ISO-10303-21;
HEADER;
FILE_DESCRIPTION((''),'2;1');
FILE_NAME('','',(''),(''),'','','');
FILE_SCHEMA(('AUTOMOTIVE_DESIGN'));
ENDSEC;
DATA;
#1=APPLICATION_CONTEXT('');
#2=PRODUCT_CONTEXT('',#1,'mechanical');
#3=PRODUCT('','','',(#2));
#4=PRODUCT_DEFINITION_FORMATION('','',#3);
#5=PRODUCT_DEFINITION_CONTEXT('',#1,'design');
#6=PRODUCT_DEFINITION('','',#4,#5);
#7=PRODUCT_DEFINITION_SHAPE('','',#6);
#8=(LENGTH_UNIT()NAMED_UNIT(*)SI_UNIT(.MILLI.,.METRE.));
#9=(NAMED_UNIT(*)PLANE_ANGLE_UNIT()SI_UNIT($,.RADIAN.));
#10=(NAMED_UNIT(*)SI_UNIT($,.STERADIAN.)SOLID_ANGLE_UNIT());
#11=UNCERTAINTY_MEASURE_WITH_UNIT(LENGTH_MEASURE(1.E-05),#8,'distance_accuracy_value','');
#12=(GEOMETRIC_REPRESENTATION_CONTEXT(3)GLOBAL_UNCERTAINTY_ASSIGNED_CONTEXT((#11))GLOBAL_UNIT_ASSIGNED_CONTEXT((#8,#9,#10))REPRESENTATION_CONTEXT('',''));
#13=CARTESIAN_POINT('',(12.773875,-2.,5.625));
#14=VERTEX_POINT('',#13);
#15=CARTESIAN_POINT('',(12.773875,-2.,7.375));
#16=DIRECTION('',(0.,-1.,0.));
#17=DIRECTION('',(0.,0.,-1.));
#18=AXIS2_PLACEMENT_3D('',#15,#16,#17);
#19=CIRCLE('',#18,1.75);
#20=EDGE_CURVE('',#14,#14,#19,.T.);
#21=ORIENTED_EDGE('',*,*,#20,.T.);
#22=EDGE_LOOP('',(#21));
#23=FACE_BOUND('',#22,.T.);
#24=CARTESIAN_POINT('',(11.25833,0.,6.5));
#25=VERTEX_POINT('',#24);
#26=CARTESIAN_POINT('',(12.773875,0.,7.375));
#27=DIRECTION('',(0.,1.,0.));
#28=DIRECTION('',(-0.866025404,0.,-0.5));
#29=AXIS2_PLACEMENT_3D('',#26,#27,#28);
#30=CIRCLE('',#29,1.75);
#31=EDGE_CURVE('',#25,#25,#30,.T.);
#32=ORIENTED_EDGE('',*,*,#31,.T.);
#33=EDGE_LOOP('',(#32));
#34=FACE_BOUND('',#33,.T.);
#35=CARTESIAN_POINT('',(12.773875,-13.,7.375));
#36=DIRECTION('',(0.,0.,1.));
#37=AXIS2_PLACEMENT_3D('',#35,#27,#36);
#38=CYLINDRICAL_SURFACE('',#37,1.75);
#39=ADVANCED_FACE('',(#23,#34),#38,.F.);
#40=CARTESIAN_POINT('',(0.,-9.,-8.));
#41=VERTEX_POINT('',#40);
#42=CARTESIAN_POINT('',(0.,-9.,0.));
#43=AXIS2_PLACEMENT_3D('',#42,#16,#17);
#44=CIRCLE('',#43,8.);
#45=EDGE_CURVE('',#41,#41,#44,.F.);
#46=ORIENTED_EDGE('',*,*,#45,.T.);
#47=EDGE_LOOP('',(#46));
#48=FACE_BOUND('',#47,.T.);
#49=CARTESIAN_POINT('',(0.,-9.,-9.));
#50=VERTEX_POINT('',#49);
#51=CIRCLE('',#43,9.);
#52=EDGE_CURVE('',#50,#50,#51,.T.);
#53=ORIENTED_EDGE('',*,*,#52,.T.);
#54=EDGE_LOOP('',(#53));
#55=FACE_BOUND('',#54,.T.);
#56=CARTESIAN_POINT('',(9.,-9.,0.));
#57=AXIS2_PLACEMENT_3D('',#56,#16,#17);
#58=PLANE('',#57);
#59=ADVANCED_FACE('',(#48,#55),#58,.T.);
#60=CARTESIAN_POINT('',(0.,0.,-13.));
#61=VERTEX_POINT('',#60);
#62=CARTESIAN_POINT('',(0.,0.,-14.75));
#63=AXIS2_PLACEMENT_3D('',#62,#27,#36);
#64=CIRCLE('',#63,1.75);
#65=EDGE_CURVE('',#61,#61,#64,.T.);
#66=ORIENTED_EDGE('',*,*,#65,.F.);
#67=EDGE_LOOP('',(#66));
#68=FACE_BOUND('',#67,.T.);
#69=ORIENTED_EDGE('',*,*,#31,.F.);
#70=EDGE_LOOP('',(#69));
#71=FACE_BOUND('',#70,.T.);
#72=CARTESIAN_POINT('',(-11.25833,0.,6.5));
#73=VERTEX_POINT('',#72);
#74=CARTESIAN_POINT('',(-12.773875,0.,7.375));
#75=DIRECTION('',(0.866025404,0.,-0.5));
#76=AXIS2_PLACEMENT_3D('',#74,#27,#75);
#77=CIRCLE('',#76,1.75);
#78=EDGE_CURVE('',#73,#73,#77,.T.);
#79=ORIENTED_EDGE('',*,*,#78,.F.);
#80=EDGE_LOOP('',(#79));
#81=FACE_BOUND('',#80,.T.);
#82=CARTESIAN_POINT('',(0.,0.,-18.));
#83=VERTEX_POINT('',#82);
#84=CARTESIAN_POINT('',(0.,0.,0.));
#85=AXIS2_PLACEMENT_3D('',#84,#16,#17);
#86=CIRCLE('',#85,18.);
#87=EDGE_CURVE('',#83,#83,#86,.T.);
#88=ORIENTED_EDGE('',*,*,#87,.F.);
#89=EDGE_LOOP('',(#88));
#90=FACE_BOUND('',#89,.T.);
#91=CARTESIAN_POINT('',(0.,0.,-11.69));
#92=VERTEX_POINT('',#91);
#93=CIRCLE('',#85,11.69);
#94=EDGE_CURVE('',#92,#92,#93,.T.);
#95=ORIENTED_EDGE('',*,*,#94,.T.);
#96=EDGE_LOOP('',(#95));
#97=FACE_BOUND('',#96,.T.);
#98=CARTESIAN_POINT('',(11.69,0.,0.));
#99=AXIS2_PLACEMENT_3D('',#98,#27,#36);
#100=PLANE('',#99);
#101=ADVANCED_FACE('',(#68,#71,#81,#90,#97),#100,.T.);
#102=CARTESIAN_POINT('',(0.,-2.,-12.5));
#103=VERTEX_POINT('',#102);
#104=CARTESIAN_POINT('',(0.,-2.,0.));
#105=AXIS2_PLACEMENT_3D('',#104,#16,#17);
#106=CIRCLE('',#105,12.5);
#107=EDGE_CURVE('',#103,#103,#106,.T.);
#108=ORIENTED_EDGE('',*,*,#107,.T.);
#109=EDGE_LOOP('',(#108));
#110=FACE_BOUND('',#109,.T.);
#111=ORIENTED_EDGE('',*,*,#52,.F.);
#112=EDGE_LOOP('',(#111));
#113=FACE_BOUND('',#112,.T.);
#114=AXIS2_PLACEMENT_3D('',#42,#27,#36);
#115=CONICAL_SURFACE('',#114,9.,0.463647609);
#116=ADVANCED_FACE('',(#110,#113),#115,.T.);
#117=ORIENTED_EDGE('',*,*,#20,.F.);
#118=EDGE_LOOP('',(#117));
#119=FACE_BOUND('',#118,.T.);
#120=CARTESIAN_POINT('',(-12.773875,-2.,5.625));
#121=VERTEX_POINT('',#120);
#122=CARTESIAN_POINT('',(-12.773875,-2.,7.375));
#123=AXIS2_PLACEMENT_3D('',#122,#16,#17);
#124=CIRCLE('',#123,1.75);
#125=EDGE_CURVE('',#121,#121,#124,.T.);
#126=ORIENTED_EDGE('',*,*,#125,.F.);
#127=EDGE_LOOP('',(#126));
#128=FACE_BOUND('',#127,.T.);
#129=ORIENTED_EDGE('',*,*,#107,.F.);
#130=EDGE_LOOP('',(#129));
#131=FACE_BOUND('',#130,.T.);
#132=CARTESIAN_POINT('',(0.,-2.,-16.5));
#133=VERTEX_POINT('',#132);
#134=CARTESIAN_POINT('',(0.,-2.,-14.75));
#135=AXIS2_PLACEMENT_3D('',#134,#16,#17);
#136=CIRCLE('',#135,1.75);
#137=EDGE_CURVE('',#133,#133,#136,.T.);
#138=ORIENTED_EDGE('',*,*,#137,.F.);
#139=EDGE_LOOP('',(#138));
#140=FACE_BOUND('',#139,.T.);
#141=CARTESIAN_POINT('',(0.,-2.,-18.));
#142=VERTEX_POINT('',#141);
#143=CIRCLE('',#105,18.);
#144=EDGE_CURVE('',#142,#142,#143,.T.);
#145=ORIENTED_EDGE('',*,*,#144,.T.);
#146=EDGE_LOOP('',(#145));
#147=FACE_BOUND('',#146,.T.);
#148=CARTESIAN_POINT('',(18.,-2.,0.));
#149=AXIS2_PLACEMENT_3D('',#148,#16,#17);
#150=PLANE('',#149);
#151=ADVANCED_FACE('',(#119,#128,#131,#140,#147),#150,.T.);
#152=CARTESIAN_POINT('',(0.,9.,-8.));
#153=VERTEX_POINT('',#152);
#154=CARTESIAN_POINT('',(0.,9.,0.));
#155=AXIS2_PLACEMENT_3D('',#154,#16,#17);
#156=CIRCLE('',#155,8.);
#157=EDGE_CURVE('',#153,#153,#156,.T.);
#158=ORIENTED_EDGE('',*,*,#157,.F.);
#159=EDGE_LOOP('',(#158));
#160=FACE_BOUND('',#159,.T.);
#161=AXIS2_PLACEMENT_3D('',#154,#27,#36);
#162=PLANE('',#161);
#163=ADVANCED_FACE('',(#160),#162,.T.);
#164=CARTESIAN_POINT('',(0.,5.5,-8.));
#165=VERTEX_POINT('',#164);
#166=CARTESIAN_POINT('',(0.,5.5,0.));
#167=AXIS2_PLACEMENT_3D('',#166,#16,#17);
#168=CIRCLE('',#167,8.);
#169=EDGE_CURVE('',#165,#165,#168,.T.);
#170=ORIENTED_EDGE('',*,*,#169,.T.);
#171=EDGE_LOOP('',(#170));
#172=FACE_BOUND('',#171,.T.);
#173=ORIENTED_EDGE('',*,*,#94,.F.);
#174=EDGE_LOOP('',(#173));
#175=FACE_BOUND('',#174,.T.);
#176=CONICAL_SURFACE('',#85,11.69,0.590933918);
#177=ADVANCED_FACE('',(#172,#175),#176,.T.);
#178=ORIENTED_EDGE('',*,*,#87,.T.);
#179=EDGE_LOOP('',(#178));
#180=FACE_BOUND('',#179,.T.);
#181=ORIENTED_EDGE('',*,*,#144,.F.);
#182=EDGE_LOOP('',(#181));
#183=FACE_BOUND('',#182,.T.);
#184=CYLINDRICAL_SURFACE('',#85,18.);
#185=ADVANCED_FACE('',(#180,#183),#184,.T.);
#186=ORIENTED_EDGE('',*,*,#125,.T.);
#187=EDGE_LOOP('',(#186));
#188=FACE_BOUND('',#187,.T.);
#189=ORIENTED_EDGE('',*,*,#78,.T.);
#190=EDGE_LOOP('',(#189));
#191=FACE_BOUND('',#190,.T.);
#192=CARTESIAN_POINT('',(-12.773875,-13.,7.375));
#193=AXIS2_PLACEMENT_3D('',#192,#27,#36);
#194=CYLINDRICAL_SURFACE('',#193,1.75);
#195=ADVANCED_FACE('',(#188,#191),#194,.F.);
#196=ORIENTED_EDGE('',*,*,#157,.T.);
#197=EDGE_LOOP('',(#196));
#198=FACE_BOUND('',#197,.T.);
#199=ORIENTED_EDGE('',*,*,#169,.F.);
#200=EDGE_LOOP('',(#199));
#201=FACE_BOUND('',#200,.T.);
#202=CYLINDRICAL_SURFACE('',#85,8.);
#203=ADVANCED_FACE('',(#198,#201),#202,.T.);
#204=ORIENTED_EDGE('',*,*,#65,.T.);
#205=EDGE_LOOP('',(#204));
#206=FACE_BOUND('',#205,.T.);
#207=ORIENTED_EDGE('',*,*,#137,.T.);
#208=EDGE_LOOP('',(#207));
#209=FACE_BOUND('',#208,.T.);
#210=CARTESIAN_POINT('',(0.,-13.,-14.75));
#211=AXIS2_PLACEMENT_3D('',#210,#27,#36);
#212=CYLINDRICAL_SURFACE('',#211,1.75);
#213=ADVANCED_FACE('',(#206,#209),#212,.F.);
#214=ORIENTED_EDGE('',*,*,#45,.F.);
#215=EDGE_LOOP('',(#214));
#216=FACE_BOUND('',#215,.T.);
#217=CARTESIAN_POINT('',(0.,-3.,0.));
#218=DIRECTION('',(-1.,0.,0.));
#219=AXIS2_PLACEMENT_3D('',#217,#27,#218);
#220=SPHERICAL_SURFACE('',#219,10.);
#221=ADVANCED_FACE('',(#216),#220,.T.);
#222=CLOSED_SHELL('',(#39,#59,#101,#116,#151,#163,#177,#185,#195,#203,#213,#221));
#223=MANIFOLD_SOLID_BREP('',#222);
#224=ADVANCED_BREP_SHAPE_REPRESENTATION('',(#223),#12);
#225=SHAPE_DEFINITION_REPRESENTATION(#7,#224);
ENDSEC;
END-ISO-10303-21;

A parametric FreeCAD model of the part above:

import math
import FreeCAD as App
import Part
import Sketcher

V = App.Vector

doc = App.newDocument("Part")
body = doc.addObject("PartDesign::Body", "Body")

sketch1 = body.newObject("Sketcher::SketchObject", "Sketch")
sketch1.AttachmentSupport = (doc.getObject("XY_Plane"), [""])
sketch1.MapMode = "FlatFace"
sketch1.addGeometry(Part.LineSegment(V(0, 9, 0), V(0, -9, 0)), False)
sketch1.addGeometry(Part.LineSegment(V(0, -9, 0), V(9, -9, 0)), False)
sketch1.addGeometry(Part.LineSegment(V(9, -9, 0), V(12.5, -2, 0)), False)
sketch1.addGeometry(Part.LineSegment(V(12.5, -2, 0), V(18, -2, 0)), False)
sketch1.addGeometry(Part.LineSegment(V(18, -2, 0), V(18, 0, 0)), False)
sketch1.addGeometry(Part.LineSegment(V(18, 0, 0), V(11.69, 0, 0)), False)
sketch1.addGeometry(Part.LineSegment(V(11.69, 0, 0), V(8, 5.5, 0)), False)
sketch1.addGeometry(Part.LineSegment(V(8, 5.5, 0), V(8, 9, 0)), False)
sketch1.addGeometry(Part.LineSegment(V(8, 9, 0), V(0, 9, 0)), False)
sketch1.addConstraint(Sketcher.Constraint("Coincident", 0, 2, 1, 1))
sketch1.addConstraint(Sketcher.Constraint("Coincident", 1, 2, 2, 1))
sketch1.addConstraint(Sketcher.Constraint("Coincident", 2, 2, 3, 1))
sketch1.addConstraint(Sketcher.Constraint("Coincident", 3, 2, 4, 1))
sketch1.addConstraint(Sketcher.Constraint("Coincident", 4, 2, 5, 1))
sketch1.addConstraint(Sketcher.Constraint("Coincident", 5, 2, 6, 1))
sketch1.addConstraint(Sketcher.Constraint("Coincident", 6, 2, 7, 1))
sketch1.addConstraint(Sketcher.Constraint("Coincident", 7, 2, 8, 1))
sketch1.addConstraint(Sketcher.Constraint("Coincident", 8, 2, 0, 1))
sketch1.addConstraint(Sketcher.Constraint("Vertical", 0))
sketch1.addConstraint(Sketcher.Constraint("Horizontal", 1))
sketch1.addConstraint(Sketcher.Constraint("Horizontal", 3))
sketch1.addConstraint(Sketcher.Constraint("Vertical", 4))
sketch1.addConstraint(Sketcher.Constraint("Horizontal", 5))
sketch1.addConstraint(Sketcher.Constraint("Vertical", 7))
sketch1.addConstraint(Sketcher.Constraint("Horizontal", 8))
sketch1.addConstraint(Sketcher.Constraint("Symmetric", 0, 2, 8, 2, -1, 1))
sketch1.addConstraint(Sketcher.Constraint("PointOnObject", 4, 2, -1))
sketch1.addConstraint(Sketcher.Constraint("DistanceX", 1, 1, 1, 2, 9.0))
sketch1.addConstraint(Sketcher.Constraint("DistanceX", 8, 2, 8, 1, 8.0))
sketch1.addConstraint(Sketcher.Constraint("DistanceY", 0, 2, 0, 1, 18.0))
sketch1.addConstraint(Sketcher.Constraint("DistanceY", 4, 1, 4, 2, 2.0))
sketch1.addConstraint(Sketcher.Constraint("DistanceX", 3, 1, 3, 2, 5.5))
sketch1.addConstraint(Sketcher.Constraint("DistanceY", 7, 1, 7, 2, 3.5))
sketch1.addConstraint(Sketcher.Constraint("DistanceX", -1, 1, 3, 2, 18.0))
sketch1.addConstraint(Sketcher.Constraint("DistanceX", 5, 2, 5, 1, 6.31))
revolution = body.newObject("PartDesign::Revolution", "Revolution")
revolution.Profile = sketch1
revolution.ReferenceAxis = (sketch1, ["V_Axis"])
revolution.Angle = 360

sketch2 = body.newObject("Sketcher::SketchObject", "Sketch001")
sketch2.AttachmentSupport = (doc.getObject("XY_Plane"), [""])
sketch2.MapMode = "FlatFace"
sketch2.addGeometry(Part.LineSegment(V(0, 7, 0), V(0, -13, 0)), False)
sketch2.addGeometry(Part.ArcOfCircle(Part.Circle(V(0, -3, 0), V(0, 0, 1), 10), math.radians(-90), math.radians(90)), False)
sketch2.addConstraint(Sketcher.Constraint("Coincident", 0, 1, 1, 2))
sketch2.addConstraint(Sketcher.Constraint("Coincident", 1, 1, 0, 2))
sketch2.addConstraint(Sketcher.Constraint("Vertical", 0))
sketch2.addConstraint(Sketcher.Constraint("PointOnObject", 1, 3, -2))
sketch2.addConstraint(Sketcher.Constraint("PointOnObject", 0, 1, -2))
sketch2.addConstraint(Sketcher.Constraint("Radius", 1, 10.0))
sketch2.addConstraint(Sketcher.Constraint("DistanceY", 1, 3, -1, 1, 3.0))
revolution2 = body.newObject("PartDesign::Revolution", "Revolution001")
revolution2.Profile = sketch2
revolution2.ReferenceAxis = (sketch2, ["V_Axis"])
revolution2.Angle = 360

sketch3 = body.newObject("Sketcher::SketchObject", "Sketch002")
sketch3.AttachmentSupport = (doc.getObject("XZ_Plane"), [""])
sketch3.MapMode = "FlatFace"
sketch3.addGeometry(Part.Circle(V(0, -14.75, 0), V(0, 0, 1), 1.75), False)
sketch3.addConstraint(Sketcher.Constraint("PointOnObject", 0, 3, -2))
sketch3.addConstraint(Sketcher.Constraint("Diameter", 0, 3.5))
sketch3.addConstraint(Sketcher.Constraint("DistanceY", 0, 3, -1, 1, 14.75))
pocket1 = body.newObject("PartDesign::Pocket", "Pocket")
pocket1.Profile = sketch3
pocket1.Type = "ThroughAll"
pocket1.Reversed = True
doc.recompute()

polarpattern = body.newObject("PartDesign::PolarPattern", "PolarPattern")
polarpattern.Originals = [pocket1]
polarpattern.Axis = (doc.getObject("Y_Axis"), [""])
polarpattern.Angle = 360
polarpattern.Occurrences = 3
body.Tip = polarpattern

doc.recompute()
